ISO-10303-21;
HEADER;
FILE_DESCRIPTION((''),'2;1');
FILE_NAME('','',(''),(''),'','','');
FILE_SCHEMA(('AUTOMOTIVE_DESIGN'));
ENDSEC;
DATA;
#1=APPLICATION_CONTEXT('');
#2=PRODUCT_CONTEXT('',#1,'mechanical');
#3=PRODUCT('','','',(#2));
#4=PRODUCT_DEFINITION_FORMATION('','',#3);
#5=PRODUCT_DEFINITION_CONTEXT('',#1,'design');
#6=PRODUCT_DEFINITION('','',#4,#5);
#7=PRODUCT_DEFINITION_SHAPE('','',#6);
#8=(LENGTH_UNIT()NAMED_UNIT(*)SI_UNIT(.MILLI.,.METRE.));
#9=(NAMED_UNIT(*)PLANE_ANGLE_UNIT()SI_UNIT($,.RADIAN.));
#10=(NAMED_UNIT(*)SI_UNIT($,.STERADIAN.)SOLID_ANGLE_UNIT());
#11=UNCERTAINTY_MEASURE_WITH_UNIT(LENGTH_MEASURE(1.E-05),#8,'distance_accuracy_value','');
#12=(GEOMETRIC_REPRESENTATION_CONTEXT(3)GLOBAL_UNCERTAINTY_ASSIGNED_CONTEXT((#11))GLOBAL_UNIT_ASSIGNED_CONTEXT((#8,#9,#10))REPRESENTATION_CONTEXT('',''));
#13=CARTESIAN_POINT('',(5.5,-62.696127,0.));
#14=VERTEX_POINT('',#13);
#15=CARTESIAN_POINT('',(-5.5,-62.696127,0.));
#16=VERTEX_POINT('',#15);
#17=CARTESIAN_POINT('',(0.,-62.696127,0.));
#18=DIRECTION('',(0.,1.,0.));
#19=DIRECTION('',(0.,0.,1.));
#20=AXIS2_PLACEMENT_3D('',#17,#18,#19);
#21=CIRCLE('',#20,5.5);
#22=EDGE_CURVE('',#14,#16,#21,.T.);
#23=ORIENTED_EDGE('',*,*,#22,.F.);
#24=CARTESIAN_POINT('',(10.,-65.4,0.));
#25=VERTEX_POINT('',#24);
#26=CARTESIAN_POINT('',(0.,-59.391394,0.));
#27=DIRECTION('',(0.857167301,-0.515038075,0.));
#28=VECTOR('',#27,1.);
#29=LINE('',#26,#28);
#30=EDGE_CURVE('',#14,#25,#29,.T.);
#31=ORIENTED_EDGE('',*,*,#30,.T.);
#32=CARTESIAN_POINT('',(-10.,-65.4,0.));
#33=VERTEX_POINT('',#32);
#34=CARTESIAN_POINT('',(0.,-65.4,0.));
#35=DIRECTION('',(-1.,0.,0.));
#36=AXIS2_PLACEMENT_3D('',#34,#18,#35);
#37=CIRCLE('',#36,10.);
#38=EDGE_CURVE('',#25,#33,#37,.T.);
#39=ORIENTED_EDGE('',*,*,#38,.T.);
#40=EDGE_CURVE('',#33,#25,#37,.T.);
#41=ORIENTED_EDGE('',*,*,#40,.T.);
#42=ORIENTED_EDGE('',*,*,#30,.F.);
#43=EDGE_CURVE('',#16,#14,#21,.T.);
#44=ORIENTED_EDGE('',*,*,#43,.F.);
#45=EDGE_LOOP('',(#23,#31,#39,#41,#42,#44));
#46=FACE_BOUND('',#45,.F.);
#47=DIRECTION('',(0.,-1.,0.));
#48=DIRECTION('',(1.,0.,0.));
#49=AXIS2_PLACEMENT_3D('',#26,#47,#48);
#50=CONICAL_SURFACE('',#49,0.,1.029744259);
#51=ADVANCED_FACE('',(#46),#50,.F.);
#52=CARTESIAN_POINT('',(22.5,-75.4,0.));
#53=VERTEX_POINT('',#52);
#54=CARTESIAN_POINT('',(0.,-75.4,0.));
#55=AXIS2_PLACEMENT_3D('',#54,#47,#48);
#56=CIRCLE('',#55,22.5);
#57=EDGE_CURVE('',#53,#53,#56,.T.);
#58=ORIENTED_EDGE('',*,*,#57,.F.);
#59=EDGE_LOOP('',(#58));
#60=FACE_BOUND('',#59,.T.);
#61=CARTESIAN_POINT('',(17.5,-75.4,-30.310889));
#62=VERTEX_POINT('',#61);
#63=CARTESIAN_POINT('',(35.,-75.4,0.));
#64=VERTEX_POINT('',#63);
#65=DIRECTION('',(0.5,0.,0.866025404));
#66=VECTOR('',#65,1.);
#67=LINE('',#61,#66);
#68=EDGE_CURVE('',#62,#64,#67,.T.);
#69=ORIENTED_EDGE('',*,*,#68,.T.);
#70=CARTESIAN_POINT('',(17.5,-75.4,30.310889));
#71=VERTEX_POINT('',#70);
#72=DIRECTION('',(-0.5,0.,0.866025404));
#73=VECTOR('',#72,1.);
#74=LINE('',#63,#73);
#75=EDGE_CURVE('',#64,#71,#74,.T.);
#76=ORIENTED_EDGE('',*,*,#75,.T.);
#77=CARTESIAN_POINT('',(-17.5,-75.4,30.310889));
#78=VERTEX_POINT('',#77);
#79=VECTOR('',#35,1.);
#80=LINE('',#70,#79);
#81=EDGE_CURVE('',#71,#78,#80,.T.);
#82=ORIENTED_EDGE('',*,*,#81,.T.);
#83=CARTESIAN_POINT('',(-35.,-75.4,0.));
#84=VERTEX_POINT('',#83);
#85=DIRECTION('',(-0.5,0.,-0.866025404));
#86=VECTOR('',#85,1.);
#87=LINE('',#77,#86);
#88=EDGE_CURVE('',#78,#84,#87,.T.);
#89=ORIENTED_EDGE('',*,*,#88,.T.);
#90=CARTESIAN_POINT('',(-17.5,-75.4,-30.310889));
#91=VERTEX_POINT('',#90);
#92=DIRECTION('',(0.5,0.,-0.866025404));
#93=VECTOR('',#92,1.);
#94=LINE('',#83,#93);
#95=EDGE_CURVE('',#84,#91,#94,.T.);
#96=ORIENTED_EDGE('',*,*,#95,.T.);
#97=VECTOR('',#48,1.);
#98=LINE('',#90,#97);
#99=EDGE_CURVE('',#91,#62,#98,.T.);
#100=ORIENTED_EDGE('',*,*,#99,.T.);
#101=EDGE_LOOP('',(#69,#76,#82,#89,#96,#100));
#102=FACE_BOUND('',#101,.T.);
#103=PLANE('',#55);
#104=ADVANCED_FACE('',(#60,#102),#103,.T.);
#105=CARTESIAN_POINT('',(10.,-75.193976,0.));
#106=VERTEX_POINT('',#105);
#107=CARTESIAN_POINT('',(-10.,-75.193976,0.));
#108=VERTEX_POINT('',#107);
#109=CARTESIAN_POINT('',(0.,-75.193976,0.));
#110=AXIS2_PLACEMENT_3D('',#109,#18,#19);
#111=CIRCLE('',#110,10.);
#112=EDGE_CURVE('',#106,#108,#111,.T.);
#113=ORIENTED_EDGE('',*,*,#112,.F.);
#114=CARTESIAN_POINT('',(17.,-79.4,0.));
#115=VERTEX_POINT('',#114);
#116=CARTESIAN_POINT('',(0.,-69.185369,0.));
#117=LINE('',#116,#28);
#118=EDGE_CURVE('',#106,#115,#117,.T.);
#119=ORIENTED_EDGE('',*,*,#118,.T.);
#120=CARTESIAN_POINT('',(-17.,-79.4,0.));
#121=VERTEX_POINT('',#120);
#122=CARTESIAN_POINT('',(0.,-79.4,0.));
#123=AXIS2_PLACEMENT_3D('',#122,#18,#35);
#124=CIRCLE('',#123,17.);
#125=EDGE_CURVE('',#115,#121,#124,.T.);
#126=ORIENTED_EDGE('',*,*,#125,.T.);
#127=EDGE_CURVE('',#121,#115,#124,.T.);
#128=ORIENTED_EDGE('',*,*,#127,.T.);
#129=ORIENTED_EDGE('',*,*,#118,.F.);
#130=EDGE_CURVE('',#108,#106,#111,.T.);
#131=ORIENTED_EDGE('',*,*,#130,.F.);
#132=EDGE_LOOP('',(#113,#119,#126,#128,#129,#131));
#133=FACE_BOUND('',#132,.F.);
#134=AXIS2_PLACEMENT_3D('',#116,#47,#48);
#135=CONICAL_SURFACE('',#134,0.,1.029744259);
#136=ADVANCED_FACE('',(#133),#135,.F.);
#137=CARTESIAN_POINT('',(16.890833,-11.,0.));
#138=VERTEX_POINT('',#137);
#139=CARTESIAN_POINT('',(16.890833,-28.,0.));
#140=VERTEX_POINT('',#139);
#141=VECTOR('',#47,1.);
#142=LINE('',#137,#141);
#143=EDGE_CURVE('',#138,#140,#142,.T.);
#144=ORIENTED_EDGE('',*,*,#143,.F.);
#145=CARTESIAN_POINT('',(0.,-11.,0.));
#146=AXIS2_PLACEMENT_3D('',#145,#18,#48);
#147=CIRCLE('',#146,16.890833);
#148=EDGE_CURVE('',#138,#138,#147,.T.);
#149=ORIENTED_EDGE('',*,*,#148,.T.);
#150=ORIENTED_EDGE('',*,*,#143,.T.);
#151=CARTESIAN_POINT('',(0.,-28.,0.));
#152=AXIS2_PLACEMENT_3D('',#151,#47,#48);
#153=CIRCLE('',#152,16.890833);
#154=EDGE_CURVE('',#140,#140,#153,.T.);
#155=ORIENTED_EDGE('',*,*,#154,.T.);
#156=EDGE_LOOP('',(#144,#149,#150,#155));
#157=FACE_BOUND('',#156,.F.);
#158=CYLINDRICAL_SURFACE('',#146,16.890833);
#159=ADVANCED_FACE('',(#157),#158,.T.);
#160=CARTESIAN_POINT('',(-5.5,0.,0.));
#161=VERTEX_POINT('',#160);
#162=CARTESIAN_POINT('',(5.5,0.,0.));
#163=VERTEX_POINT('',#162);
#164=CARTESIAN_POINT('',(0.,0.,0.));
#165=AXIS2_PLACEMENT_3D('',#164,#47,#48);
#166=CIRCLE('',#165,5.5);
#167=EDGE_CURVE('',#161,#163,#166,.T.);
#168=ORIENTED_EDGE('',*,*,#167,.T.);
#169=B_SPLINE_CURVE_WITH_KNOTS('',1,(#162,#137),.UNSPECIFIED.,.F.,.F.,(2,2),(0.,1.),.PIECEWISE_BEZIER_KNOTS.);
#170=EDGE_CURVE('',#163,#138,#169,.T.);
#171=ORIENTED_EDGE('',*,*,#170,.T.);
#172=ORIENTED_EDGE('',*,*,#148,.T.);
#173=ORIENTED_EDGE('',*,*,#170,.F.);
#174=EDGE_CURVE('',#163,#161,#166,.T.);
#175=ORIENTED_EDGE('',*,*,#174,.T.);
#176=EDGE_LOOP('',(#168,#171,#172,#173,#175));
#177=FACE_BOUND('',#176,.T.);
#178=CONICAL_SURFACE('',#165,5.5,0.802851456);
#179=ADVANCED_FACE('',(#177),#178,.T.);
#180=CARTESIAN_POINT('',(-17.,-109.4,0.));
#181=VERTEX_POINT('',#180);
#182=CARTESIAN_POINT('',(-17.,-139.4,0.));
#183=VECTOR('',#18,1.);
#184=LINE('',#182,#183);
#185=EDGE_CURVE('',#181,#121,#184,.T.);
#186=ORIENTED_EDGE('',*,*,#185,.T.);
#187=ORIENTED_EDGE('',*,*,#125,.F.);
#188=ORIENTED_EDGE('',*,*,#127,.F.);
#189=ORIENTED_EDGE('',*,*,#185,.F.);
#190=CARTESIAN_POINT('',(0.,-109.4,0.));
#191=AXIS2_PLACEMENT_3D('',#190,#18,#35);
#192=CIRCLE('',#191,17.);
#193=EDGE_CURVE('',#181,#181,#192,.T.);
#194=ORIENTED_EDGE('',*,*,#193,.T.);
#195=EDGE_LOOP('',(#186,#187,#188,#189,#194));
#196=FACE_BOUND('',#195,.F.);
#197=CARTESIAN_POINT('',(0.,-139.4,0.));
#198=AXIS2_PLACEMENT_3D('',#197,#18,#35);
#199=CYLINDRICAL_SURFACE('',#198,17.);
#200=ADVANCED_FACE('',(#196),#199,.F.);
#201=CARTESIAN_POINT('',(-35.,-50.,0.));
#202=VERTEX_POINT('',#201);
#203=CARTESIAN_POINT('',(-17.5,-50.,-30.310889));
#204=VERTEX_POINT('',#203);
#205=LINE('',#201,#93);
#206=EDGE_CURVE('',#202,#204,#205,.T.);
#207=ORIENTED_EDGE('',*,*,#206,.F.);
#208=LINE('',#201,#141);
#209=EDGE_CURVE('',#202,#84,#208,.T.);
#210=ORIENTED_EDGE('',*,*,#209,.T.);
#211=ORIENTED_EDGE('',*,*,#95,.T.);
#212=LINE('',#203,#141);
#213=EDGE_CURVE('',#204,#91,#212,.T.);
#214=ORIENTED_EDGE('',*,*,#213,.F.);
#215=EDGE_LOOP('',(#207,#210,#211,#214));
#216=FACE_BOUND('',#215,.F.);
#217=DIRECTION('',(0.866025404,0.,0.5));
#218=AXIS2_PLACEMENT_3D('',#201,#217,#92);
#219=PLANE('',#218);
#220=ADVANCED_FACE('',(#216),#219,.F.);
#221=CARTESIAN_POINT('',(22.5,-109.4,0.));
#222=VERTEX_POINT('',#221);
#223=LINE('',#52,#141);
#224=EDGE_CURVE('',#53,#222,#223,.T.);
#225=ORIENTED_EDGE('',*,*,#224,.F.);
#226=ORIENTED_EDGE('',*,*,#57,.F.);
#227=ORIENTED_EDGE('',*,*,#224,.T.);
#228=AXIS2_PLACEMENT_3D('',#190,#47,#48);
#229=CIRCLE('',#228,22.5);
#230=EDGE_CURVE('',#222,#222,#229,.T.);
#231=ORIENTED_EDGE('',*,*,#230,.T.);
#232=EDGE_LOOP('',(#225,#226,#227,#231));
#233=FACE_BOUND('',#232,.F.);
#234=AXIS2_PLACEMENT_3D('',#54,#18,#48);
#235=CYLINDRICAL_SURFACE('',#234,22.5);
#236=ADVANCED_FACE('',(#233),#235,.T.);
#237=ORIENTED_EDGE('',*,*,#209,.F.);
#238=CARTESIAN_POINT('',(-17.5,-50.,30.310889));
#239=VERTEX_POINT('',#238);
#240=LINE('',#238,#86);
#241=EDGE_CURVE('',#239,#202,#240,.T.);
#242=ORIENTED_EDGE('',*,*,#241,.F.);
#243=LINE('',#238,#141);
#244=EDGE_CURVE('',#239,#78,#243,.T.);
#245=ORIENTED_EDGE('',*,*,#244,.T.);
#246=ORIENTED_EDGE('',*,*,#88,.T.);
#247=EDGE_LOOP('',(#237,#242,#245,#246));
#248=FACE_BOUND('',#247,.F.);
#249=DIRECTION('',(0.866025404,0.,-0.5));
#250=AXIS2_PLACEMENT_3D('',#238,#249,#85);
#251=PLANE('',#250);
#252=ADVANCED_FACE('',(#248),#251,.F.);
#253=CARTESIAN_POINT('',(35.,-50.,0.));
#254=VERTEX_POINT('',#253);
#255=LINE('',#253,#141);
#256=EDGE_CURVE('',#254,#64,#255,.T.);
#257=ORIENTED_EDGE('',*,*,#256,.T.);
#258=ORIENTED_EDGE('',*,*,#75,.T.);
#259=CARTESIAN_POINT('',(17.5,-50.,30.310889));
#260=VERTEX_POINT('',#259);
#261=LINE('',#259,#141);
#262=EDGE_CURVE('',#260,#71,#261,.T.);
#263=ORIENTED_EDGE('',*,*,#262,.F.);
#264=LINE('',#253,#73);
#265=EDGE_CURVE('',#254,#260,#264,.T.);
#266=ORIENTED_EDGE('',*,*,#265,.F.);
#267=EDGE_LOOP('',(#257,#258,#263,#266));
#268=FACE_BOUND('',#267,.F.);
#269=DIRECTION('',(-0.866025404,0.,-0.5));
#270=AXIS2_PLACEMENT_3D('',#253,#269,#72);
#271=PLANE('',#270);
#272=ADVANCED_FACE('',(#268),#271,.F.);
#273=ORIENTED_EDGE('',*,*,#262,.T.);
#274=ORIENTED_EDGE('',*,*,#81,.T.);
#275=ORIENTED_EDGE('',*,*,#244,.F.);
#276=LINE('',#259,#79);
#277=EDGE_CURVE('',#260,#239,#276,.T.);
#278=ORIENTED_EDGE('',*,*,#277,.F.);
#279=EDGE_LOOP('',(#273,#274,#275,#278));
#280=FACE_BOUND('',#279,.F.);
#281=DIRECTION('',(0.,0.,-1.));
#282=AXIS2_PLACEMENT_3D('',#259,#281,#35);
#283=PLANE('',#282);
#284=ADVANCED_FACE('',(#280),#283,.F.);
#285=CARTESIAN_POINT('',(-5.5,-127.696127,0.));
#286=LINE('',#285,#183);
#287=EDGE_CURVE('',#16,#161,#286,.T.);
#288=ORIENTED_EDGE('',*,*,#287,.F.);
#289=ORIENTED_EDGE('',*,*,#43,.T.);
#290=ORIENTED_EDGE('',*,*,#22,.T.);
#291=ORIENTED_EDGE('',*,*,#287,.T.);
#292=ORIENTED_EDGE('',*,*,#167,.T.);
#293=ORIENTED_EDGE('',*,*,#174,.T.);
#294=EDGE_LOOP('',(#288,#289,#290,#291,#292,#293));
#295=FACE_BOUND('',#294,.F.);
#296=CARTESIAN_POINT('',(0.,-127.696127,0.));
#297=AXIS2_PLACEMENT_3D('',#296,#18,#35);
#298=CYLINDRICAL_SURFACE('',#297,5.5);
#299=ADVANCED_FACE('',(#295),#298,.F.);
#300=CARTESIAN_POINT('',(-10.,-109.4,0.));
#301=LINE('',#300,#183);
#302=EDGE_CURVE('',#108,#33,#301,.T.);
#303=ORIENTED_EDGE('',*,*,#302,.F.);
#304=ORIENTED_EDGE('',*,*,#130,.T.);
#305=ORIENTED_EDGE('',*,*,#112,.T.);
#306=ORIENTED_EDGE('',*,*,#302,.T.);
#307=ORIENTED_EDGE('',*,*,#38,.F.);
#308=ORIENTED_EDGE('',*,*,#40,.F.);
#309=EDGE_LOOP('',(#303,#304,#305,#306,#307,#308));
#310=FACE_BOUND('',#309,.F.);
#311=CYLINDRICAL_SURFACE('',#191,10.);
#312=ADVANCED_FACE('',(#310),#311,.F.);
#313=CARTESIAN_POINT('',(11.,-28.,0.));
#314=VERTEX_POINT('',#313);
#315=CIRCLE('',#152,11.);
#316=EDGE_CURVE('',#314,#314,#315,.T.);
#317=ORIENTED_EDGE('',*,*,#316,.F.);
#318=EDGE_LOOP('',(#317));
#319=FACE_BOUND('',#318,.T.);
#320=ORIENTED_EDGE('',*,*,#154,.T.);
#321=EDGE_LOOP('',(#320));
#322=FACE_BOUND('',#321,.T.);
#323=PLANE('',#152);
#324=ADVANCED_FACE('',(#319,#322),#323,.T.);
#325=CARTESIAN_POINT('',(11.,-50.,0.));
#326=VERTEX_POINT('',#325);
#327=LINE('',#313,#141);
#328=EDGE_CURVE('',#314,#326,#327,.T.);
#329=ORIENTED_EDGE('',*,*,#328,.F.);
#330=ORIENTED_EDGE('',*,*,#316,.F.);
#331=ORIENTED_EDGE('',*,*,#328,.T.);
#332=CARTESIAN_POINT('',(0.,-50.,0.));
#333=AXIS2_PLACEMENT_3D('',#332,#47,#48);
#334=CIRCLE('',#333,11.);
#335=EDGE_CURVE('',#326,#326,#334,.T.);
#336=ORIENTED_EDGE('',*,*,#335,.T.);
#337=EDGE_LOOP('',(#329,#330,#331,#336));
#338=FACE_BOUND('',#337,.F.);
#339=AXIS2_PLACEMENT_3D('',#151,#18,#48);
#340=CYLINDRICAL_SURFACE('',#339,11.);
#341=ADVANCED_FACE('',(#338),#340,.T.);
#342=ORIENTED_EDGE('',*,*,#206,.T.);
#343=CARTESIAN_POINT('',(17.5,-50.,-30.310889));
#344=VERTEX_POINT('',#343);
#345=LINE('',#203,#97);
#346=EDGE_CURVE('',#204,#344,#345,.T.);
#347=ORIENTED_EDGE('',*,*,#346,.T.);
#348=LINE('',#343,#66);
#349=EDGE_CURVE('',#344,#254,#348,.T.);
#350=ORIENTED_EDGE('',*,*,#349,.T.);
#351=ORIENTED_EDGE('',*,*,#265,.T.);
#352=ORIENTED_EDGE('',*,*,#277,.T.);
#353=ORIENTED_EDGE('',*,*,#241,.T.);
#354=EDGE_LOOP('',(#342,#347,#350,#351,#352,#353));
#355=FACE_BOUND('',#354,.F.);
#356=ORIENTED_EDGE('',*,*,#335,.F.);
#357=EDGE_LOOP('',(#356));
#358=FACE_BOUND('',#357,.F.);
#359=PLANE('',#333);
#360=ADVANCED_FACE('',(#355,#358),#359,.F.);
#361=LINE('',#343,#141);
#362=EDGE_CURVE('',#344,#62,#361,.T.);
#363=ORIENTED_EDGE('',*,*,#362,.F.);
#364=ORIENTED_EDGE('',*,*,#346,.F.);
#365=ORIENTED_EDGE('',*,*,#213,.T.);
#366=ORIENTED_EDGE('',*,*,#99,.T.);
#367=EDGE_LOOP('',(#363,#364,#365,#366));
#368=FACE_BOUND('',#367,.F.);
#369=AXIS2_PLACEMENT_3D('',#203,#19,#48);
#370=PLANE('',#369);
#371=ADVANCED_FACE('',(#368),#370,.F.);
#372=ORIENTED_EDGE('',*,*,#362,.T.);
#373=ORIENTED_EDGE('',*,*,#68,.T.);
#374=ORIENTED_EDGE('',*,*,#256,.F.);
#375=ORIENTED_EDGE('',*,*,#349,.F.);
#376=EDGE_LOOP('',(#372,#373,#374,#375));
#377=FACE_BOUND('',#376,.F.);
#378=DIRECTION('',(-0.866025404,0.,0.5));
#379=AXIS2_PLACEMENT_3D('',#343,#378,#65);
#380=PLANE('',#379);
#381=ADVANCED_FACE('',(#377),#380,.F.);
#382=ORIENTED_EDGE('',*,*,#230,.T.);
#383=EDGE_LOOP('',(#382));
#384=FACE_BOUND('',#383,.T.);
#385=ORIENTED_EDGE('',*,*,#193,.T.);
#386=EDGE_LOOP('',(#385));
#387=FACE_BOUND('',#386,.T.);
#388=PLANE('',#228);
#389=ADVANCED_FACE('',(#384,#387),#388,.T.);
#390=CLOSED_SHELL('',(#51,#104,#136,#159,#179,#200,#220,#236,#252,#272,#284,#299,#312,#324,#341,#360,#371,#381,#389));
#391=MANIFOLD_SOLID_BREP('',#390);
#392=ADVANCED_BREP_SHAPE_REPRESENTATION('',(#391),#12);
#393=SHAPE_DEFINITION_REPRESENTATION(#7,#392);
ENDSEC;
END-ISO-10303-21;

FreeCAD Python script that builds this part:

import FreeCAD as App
import Part
import Sketcher

V = App.Vector
Q = App.Units.Quantity


def add_polygon(sketch, points):
    """Adds a closed chain of lines whose ends are joined by coincident constraints."""
    first, n = sketch.GeometryCount, len(points)
    for a, b in zip(points, points[1:] + points[:1]):
        sketch.addGeometry(Part.LineSegment(App.Vector(*a, 0), App.Vector(*b, 0)), False)
    for i in range(n):
        sketch.addConstraint(Sketcher.Constraint("Coincident", first + i, 2, first + (i + 1) % n, 1))

doc = App.newDocument("Part")
body = doc.addObject("PartDesign::Body", "Body")

sketch1 = body.newObject("Sketcher::SketchObject", "Sketch")
sketch1.AttachmentSupport = (doc.getObject("XZ_Plane"), [""])
sketch1.MapMode = "FlatFace"
sketch1.addGeometry(Part.Circle(V(0, 0, 0), V(0, 0, 1), 6), False)
sketch1.addConstraint(Sketcher.Constraint("Coincident", 0, 3, -1, 1))
sketch1.addConstraint(Sketcher.Constraint("Diameter", 0, 11.0))
pad1 = body.newObject("PartDesign::Pad", "Pad")
pad1.Profile = sketch1
pad1.Length = 11
pad1.TaperAngle = 46

sketch2 = body.newObject("Sketcher::SketchObject", "Sketch001")
sketch2.AttachmentSupport = (doc.getObject("XZ_Plane"), [""])
sketch2.MapMode = "FlatFace"
sketch2.AttachmentOffset = App.Placement(V(0, 0, 11), App.Rotation())
sketch2.addGeometry(Part.Circle(V(0, 0, 0), V(0, 0, 1), 17), False)
sketch2.addConstraint(Sketcher.Constraint("Coincident", 0, 3, -1, 1))
sketch2.addConstraint(Sketcher.Constraint("Diameter", 0, 33.781667))
pad2 = body.newObject("PartDesign::Pad", "Pad001")
pad2.Profile = sketch2
pad2.Length = 17

sketch3 = body.newObject("Sketcher::SketchObject", "Sketch002")
sketch3.AttachmentSupport = (doc.getObject("XZ_Plane"), [""])
sketch3.MapMode = "FlatFace"
sketch3.AttachmentOffset = App.Placement(V(0, 0, 28), App.Rotation())
sketch3.addGeometry(Part.Circle(V(0, 0, 0), V(0, 0, 1), 11), False)
sketch3.addConstraint(Sketcher.Constraint("Coincident", 0, 3, -1, 1))
sketch3.addConstraint(Sketcher.Constraint("Diameter", 0, 22.0))
pad3 = body.newObject("PartDesign::Pad", "Pad002")
pad3.Profile = sketch3
pad3.Length = 22

sketch4 = body.newObject("Sketcher::SketchObject", "Sketch003")
sketch4.AttachmentSupport = (doc.getObject("XZ_Plane"), [""])
sketch4.MapMode = "FlatFace"
sketch4.AttachmentOffset = App.Placement(V(0, 0, 50), App.Rotation())
add_polygon(sketch4, [(18, -30), (35, 0), (18, 30), (-18, 30), (-35, 0), (-18, -30)])
sketch4.addConstraint(Sketcher.Constraint("Horizontal", 2))
sketch4.addConstraint(Sketcher.Constraint("Horizontal", 5))
sketch4.addConstraint(Sketcher.Constraint("Symmetric", 0, 2, 3, 2, -1, 1))
sketch4.addConstraint(Sketcher.Constraint("Symmetric", 1, 2, 4, 2, -1, 1))
sketch4.addConstraint(Sketcher.Constraint("PointOnObject", 0, 2, -1))
sketch4.addConstraint(Sketcher.Constraint("Parallel", 0, 3))
sketch4.addConstraint(Sketcher.Constraint("Vertical", 2, 2, 4, 2))
sketch4.addConstraint(Sketcher.Constraint("DistanceX", 2, 2, 2, 1, 35.0))
sketch4.addConstraint(Sketcher.Constraint("Angle", 0, Q("60 deg")))
sketch4.addConstraint(Sketcher.Constraint("Distance", 0, 35.0))
pad4 = body.newObject("PartDesign::Pad", "Pad003")
pad4.Profile = sketch4
pad4.Length = 25.4

sketch5 = body.newObject("Sketcher::SketchObject", "Sketch004")
sketch5.AttachmentSupport = (doc.getObject("XZ_Plane"), [""])
sketch5.MapMode = "FlatFace"
sketch5.AttachmentOffset = App.Placement(V(0, 0, 75.4), App.Rotation())
sketch5.addGeometry(Part.Circle(V(0, 0, 0), V(0, 0, 1), 22), False)
sketch5.addConstraint(Sketcher.Constraint("Coincident", 0, 3, -1, 1))
sketch5.addConstraint(Sketcher.Constraint("Diameter", 0, 45.0))
pad5 = body.newObject("PartDesign::Pad", "Pad004")
pad5.Profile = sketch5
pad5.Length = 34

sketch6 = body.newObject("Sketcher::SketchObject", "Sketch005")
sketch6.AttachmentSupport = (doc.getObject("XZ_Plane"), [""])
sketch6.MapMode = "FlatFace"
sketch6.AttachmentOffset = App.Placement(V(0, 0, 109.4), App.Rotation())
sketch6.addGeometry(Part.Circle(V(0, 0, 0), V(0, 0, 1), 17), False)
sketch6.addConstraint(Sketcher.Constraint("Coincident", 0, 3, -1, 1))
sketch6.addConstraint(Sketcher.Constraint("Diameter", 0, 34.0))
doc.recompute()
hole = body.newObject("PartDesign::Hole", "Hole")
hole.Profile = sketch6
hole.ThreadType = "None"
hole.Diameter = 34
hole.DepthType = "Dimension"
hole.Depth = 30
hole.DrillPoint = "Angled"
hole.DrillPointAngle = 118

sketch7 = body.newObject("Sketcher::SketchObject", "Sketch006")
sketch7.AttachmentSupport = (doc.getObject("XZ_Plane"), [""])
sketch7.MapMode = "FlatFace"
sketch7.AttachmentOffset = App.Placement(V(0, 0, 109.4), App.Rotation())
sketch7.addGeometry(Part.Circle(V(0, 0, 0), V(0, 0, 1), 10), False)
sketch7.addConstraint(Sketcher.Constraint("Coincident", 0, 3, -1, 1))
sketch7.addConstraint(Sketcher.Constraint("Diameter", 0, 20.0))
doc.recompute()
hole2 = body.newObject("PartDesign::Hole", "Hole001")
hole2.Profile = sketch7
hole2.ThreadType = "None"
hole2.Diameter = 20
hole2.DepthType = "Dimension"
hole2.Depth = 44
hole2.DrillPoint = "Angled"
hole2.DrillPointAngle = 118
hole2.HoleCutType = "Countersink"
hole2.HoleCutDiameter = 34
hole2.HoleCutCountersinkAngle = 46

sketch8 = body.newObject("Sketcher::SketchObject", "Sketch007")
sketch8.AttachmentSupport = (doc.getObject("XZ_Plane"), [""])
sketch8.MapMode = "FlatFace"
sketch8.AttachmentOffset = App.Placement(V(0, 0, 62.696127), App.Rotation())
sketch8.addGeometry(Part.Circle(V(0, 0, 0), V(0, 0, 1), 6), False)
sketch8.addConstraint(Sketcher.Constraint("Coincident", 0, 3, -1, 1))
sketch8.addConstraint(Sketcher.Constraint("Diameter", 0, 11.0))
doc.recompute()
hole3 = body.newObject("PartDesign::Hole", "Hole002")
hole3.Profile = sketch8
hole3.ThreadType = "None"
hole3.Diameter = 11
hole3.DepthType = "Dimension"
hole3.Depth = 65
hole3.DrillPoint = "Angled"
hole3.DrillPointAngle = 118

doc.recompute()
